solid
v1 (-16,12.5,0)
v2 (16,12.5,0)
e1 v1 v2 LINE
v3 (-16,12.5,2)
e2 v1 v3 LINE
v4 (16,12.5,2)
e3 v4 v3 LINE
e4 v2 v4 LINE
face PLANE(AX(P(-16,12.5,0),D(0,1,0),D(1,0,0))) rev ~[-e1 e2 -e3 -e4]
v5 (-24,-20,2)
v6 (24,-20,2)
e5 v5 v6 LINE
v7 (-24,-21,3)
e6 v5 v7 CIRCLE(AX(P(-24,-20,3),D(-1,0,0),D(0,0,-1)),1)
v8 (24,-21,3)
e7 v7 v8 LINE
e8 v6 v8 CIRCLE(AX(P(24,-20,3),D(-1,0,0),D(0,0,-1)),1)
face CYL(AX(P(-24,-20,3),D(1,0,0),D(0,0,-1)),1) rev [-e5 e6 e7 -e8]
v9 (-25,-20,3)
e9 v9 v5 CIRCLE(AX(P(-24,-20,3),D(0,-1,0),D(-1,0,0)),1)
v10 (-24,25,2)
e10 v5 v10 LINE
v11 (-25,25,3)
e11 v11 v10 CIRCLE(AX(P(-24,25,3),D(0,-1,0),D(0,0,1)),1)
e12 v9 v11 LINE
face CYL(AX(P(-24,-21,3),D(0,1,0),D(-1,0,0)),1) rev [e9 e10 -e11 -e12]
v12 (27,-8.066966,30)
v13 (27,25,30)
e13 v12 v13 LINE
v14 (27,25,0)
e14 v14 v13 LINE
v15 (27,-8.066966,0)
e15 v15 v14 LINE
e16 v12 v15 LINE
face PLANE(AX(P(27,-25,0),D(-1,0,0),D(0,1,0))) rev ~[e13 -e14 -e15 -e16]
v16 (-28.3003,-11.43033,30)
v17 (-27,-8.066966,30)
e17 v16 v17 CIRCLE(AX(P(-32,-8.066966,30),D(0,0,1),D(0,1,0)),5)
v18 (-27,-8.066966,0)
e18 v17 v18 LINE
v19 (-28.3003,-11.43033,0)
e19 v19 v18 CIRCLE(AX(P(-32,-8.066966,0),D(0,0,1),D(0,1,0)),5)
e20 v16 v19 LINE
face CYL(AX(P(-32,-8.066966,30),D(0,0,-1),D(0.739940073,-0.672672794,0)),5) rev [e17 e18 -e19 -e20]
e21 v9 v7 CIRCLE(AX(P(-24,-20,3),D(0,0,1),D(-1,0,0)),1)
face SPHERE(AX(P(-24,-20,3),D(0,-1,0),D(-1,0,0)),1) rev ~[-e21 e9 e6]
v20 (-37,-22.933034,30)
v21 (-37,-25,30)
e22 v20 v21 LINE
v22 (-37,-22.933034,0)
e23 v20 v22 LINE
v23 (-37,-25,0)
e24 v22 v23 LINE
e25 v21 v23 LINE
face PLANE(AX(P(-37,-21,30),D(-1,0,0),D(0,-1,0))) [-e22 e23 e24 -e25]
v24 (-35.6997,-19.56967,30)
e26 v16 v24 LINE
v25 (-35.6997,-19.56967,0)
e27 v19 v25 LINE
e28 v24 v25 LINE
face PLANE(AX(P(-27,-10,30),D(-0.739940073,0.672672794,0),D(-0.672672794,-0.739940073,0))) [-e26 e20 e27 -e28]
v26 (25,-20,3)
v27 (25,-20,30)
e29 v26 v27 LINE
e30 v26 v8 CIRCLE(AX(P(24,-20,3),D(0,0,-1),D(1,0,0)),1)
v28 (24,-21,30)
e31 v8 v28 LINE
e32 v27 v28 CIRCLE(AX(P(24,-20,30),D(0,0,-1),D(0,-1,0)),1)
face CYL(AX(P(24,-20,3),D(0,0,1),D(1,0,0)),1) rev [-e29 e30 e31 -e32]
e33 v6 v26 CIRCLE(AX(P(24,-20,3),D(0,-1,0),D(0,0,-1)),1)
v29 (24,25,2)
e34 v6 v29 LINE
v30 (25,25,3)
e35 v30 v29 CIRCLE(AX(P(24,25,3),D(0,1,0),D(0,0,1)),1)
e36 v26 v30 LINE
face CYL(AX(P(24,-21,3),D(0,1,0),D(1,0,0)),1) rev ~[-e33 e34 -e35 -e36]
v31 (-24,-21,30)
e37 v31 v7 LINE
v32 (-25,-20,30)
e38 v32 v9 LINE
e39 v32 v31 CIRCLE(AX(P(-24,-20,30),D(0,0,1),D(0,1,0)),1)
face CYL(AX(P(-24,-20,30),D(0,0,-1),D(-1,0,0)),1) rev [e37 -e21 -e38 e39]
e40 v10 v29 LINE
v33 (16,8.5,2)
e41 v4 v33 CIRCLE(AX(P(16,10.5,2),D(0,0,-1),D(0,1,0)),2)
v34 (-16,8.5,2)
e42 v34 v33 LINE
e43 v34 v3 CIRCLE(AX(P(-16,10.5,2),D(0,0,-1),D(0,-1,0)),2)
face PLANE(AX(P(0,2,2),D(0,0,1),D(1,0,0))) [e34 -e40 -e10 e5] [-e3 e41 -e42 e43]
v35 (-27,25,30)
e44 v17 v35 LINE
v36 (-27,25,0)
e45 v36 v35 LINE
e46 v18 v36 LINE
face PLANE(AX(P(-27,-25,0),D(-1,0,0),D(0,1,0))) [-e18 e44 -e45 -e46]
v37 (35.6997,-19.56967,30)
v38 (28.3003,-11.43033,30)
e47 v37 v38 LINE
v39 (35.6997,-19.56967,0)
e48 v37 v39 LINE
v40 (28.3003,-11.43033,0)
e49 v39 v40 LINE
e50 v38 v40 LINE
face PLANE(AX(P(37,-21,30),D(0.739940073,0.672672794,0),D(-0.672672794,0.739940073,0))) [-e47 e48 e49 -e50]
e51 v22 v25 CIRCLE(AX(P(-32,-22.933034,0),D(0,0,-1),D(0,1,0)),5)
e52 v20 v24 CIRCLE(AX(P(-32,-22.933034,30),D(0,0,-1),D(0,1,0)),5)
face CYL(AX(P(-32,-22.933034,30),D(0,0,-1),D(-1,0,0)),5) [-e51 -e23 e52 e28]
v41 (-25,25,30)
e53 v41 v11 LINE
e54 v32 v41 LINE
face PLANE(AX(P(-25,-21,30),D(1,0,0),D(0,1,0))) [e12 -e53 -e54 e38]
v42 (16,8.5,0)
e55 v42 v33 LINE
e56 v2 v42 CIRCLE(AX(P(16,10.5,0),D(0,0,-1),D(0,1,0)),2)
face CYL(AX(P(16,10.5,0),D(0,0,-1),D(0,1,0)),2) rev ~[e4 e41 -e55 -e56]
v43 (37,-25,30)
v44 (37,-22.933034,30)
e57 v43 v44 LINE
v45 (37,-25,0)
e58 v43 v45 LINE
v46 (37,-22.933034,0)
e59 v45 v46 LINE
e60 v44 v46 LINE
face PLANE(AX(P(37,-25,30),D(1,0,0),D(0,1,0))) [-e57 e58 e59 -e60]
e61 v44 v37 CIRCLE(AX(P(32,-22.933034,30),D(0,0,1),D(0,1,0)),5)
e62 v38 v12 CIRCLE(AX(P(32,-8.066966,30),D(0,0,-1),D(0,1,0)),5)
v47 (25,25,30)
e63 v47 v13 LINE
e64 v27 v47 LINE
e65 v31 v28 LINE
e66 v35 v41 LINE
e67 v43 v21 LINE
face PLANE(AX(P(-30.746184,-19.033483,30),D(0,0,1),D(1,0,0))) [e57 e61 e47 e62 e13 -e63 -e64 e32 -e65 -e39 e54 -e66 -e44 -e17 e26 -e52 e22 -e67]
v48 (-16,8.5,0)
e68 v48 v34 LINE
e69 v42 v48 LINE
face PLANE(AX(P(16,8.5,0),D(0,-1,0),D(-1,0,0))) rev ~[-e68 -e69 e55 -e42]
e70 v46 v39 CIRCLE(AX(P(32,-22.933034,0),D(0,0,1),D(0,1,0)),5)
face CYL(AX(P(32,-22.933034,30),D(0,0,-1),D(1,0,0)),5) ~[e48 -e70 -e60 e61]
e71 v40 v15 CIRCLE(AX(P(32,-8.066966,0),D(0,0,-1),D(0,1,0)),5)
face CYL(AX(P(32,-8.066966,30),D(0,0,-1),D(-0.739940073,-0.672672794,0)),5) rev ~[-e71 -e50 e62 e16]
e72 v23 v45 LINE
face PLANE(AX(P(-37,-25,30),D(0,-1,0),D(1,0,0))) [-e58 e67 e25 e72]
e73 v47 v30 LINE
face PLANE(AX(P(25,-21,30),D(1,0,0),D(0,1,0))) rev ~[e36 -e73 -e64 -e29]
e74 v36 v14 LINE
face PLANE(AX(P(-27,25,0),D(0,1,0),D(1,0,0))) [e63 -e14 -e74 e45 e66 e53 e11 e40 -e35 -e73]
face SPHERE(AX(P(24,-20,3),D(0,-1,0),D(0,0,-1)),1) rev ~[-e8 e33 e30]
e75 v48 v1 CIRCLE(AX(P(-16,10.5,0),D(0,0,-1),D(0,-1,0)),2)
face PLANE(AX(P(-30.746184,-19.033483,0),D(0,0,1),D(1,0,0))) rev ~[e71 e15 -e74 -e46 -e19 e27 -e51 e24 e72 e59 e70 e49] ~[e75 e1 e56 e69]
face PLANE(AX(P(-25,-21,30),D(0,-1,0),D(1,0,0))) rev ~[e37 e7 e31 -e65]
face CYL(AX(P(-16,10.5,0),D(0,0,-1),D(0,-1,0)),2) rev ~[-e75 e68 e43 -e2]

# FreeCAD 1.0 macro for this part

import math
import FreeCAD as App
import Part
import Sketcher
Q = App.Units.Quantity


def edges_at(feature, points):
    """Names of the edges that pass closest to the given points."""
    edges = feature.Shape.Edges
    near = lambda p: min(range(len(edges)), key=lambda i: edges[i].distToShape(Part.Vertex(*p))[0])
    return sorted({f"Edge{near(p) + 1}" for p in points})


def add_polygon(sketch, points):
    """Adds a closed chain of lines whose ends are joined by coincident constraints."""
    first, n = sketch.GeometryCount, len(points)
    for a, b in zip(points, points[1:] + points[:1]):
        sketch.addGeometry(Part.LineSegment(App.Vector(*a, 0), App.Vector(*b, 0)), False)
    for i in range(n):
        sketch.addConstraint(Sketcher.Constraint("Coincident", first + i, 2, first + (i + 1) % n, 1))

doc = App.newDocument("Part")
body = doc.addObject("PartDesign::Body", "Body")

sketch1 = doc.addObject("Sketcher::SketchObject", "Sketch")
body.addObject(sketch1)
sketch1.AttachmentSupport = (doc.XY_Plane, [""])
sketch1.MapMode = "FlatFace"
add_polygon(sketch1, [(-27, 25), (-27, -25), (27, -25), (27, 25)])
sketch1.addConstraint([
    Sketcher.Constraint("Vertical", 0),
    Sketcher.Constraint("Horizontal", 1),
    Sketcher.Constraint("Vertical", 2),
    Sketcher.Constraint("Horizontal", 3),
    Sketcher.Constraint("Symmetric", 0, 2, 2, 2, -1, 1),
    Sketcher.Constraint("DistanceX", 1, 1, 1, 2, Q("54 mm")),
    Sketcher.Constraint("DistanceY", 0, 2, 0, 1, Q("50 mm")),
])
pad1 = doc.addObject("PartDesign::Pad", "Pad")
body.addObject(pad1)
pad1.Profile = sketch1
pad1.Length = 30

sketch2 = doc.addObject("Sketcher::SketchObject", "Sketch001")
body.addObject(sketch2)
sketch2.AttachmentSupport = (doc.XY_Plane, [""])
sketch2.MapMode = "FlatFace"
sketch2.AttachmentOffset = App.Placement(App.Vector(0, 0, 30), App.Rotation())
add_polygon(sketch2, [(-25, 25), (-25, -21), (25, -21), (25, 25)])
sketch2.addConstraint([
    Sketcher.Constraint("Vertical", 0),
    Sketcher.Constraint("Horizontal", 1),
    Sketcher.Constraint("Vertical", 2),
    Sketcher.Constraint("Horizontal", 3),
    Sketcher.Constraint("DistanceX", 1, 1, 1, 2, Q("50 mm")),
    Sketcher.Constraint("DistanceY", 0, 2, 0, 1, Q("46 mm")),
    Sketcher.Constraint("DistanceX", 0, 2, -1, 1, Q("25 mm")),
    Sketcher.Constraint("DistanceY", 0, 2, -1, 1, Q("21 mm")),
])
pocket1 = doc.addObject("PartDesign::Pocket", "Pocket")
body.addObject(pocket1)
pocket1.Profile = sketch2
pocket1.Length = 28

sketch3 = doc.addObject("Sketcher::SketchObject", "Sketch002")
body.addObject(sketch3)
sketch3.AttachmentSupport = (doc.XY_Plane, [""])
sketch3.MapMode = "FlatFace"
sketch3.AttachmentOffset = App.Placement(App.Vector(0, 0, 30), App.Rotation())
add_polygon(sketch3, [(-37, -25), (-27, -25), (-27, -10), (-37, -21)])
add_polygon(sketch3, [(27, -25), (37, -25), (37, -21), (27, -10)])
sketch3.addConstraint([
    Sketcher.Constraint("Horizontal", 0),
    Sketcher.Constraint("Vertical", 1),
    Sketcher.Constraint("Vertical", 3),
    Sketcher.Constraint("Horizontal", 4),
    Sketcher.Constraint("Vertical", 5),
    Sketcher.Constraint("Vertical", 7),
    Sketcher.Constraint("Symmetric", 3, 2, 4, 2, -2),
    Sketcher.Constraint("Symmetric", 1, 2, 6, 2, -2),
    Sketcher.Constraint("Horizontal", 2, 2, 5, 2),
    Sketcher.Constraint("DistanceX", 0, 1, 0, 2, Q("10 mm")),
    Sketcher.Constraint("DistanceY", 1, 1, 1, 2, Q("15 mm")),
    Sketcher.Constraint("DistanceY", 3, 2, 3, 1, Q("4 mm")),
    Sketcher.Constraint("DistanceX", 0, 2, -1, 1, Q("27 mm")),
    Sketcher.Constraint("DistanceY", 0, 2, -1, 1, Q("25 mm")),
])
pad2 = doc.addObject("PartDesign::Pad", "Pad001")
body.addObject(pad2)
pad2.Profile = sketch3
pad2.Type = "UpToLast"
pad2.Reversed = True

sketch4 = doc.addObject("Sketcher::SketchObject", "Sketch003")
body.addObject(sketch4)
sketch4.AttachmentSupport = (doc.XY_Plane, [""])
sketch4.MapMode = "FlatFace"
sketch4.addGeometry([
    Part.ArcOfCircle(Part.Circle(App.Vector(-16, 10.5, 0), App.Vector(0, 0, 1), 2), math.radians(90), math.radians(270)),
    Part.LineSegment(App.Vector(-16, 12.5, 0), App.Vector(16, 12.5, 0)),
    Part.ArcOfCircle(Part.Circle(App.Vector(16, 10.5, 0), App.Vector(0, 0, 1), 2), math.radians(-90), math.radians(90)),
    Part.LineSegment(App.Vector(16, 8.5, 0), App.Vector(-16, 8.5, 0)),
], False)
sketch4.addConstraint([
    Sketcher.Constraint("Tangent", 0, 1, 1, 1),
    Sketcher.Constraint("Tangent", 1, 2, 2, 2),
    Sketcher.Constraint("Tangent", 2, 1, 3, 1),
    Sketcher.Constraint("Tangent", 3, 2, 0, 2),
    Sketcher.Constraint("Horizontal", 1),
    Sketcher.Constraint("Horizontal", 3),
    Sketcher.Constraint("Radius", 0, Q("2 mm")),
    Sketcher.Constraint("DistanceX", 1, 1, 1, 2, Q("32 mm")),
    Sketcher.Constraint("DistanceX", 0, 3, -1, 1, Q("16 mm")),
    Sketcher.Constraint("DistanceY", -1, 1, 0, 3, Q("10.5 mm")),
])
pocket2 = doc.addObject("PartDesign::Pocket", "Pocket001")
body.addObject(pocket2)
pocket2.Profile = sketch4
pocket2.Type = "ThroughAll"
pocket2.Reversed = True
doc.recompute()

fillet = doc.addObject("PartDesign::Fillet", "Fillet")
body.addObject(fillet)
fillet.Base = (pocket2, edges_at(pocket2, [
    (-27, -10, 15),
    (-37, -21, 15),
    (27, -10, 15),
    (37, -21, 15),
]))
fillet.Radius = 5
doc.recompute()

fillet2 = doc.addObject("PartDesign::Fillet", "Fillet001")
body.addObject(fillet2)
fillet2.Base = (fillet, edges_at(fillet, [(-25, 2, 2), (25, 2, 2)]))
fillet2.Radius = 1
doc.recompute()

fillet3 = doc.addObject("PartDesign::Fillet", "Fillet002")
body.addObject(fillet3)
fillet3.Base = (fillet2, edges_at(fillet2, [(-25, -21, 16.5)]))
fillet3.Radius = 1

doc.recompute()
